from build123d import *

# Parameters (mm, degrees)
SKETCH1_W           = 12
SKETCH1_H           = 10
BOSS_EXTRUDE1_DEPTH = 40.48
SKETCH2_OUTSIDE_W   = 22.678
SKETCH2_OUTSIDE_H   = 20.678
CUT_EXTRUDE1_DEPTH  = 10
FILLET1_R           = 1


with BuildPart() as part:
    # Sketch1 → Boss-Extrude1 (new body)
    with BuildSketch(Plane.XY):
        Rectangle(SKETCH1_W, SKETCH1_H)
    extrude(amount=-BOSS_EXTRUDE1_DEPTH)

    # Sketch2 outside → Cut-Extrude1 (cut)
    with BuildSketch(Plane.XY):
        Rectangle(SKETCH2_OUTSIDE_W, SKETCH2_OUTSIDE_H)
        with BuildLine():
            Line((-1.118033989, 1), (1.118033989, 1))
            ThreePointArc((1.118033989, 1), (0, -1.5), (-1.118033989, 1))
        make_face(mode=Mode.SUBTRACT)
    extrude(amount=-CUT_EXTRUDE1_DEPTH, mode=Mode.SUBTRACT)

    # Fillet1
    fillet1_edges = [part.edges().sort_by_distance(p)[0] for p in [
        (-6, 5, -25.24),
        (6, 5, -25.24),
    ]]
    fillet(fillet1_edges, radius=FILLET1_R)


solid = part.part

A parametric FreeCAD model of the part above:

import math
import FreeCAD as App
import Part
import Sketcher

V = App.Vector
Q = App.Units.Quantity


def edges_at(feature, points):
    """Names of the edges that pass closest to the given points."""
    edges = feature.Shape.Edges
    near = lambda p: min(range(len(edges)), key=lambda i: edges[i].distToShape(Part.Vertex(*p))[0])
    return sorted({f"Edge{near(p) + 1}" for p in points})

doc = App.newDocument("Part")
body = doc.addObject("PartDesign::Body", "Body")

sketch1 = body.newObject("Sketcher::SketchObject", "Sketch")
sketch1.AttachmentSupport = (doc.getObject("XY_Plane"), [""])
sketch1.MapMode = "FlatFace"
sketch1.addGeometry(Part.LineSegment(V(-6, 5, 0), V(-6, -5, 0)), False)
sketch1.addGeometry(Part.LineSegment(V(-6, -5, 0), V(6, -5, 0)), False)
sketch1.addGeometry(Part.LineSegment(V(6, -5, 0), V(6, 5, 0)), False)
sketch1.addGeometry(Part.LineSegment(V(6, 5, 0), V(-6, 5, 0)), False)
sketch1.addConstraint(Sketcher.Constraint("Coincident", 0, 2, 1, 1))
sketch1.addConstraint(Sketcher.Constraint("Coincident", 1, 2, 2, 1))
sketch1.addConstraint(Sketcher.Constraint("Coincident", 2, 2, 3, 1))
sketch1.addConstraint(Sketcher.Constraint("Coincident", 3, 2, 0, 1))
sketch1.addConstraint(Sketcher.Constraint("Vertical", 0))
sketch1.addConstraint(Sketcher.Constraint("Horizontal", 1))
sketch1.addConstraint(Sketcher.Constraint("Vertical", 2))
sketch1.addConstraint(Sketcher.Constraint("Horizontal", 3))
sketch1.addConstraint(Sketcher.Constraint("Symmetric", 0, 2, 2, 2, -1, 1))
sketch1.addConstraint(Sketcher.Constraint("DistanceX", 1, 1, 1, 2, Q("12 mm")))
sketch1.addConstraint(Sketcher.Constraint("DistanceY", 0, 2, 0, 1, Q("10 mm")))
pad1 = body.newObject("PartDesign::Pad", "Pad")
pad1.Profile = sketch1
pad1.Length = 40.48
pad1.Reversed = True

sketch2 = body.newObject("Sketcher::SketchObject", "Sketch001")
sketch2.AttachmentSupport = (doc.getObject("XY_Plane"), [""])
sketch2.MapMode = "FlatFace"
sketch2.addGeometry(Part.LineSegment(V(-11.3, 10.3, 0), V(-11.3, -10.3, 0)), False)
sketch2.addGeometry(Part.LineSegment(V(-11.3, -10.3, 0), V(11.3, -10.3, 0)), False)
sketch2.addGeometry(Part.LineSegment(V(11.3, -10.3, 0), V(11.3, 10.3, 0)), False)
sketch2.addGeometry(Part.LineSegment(V(11.3, 10.3, 0), V(-11.3, 10.3, 0)), False)
sketch2.addGeometry(Part.ArcOfCircle(Part.Circle(V(0, 0, 0), V(0, 0, 1), 1.5), math.radians(138), math.radians(402)), False)
sketch2.addGeometry(Part.LineSegment(V(-1.1, 1, 0), V(1.1, 1, 0)), False)
sketch2.addConstraint(Sketcher.Constraint("Coincident", 0, 2, 1, 1))
sketch2.addConstraint(Sketcher.Constraint("Coincident", 1, 2, 2, 1))
sketch2.addConstraint(Sketcher.Constraint("Coincident", 2, 2, 3, 1))
sketch2.addConstraint(Sketcher.Constraint("Coincident", 3, 2, 0, 1))
sketch2.addConstraint(Sketcher.Constraint("Coincident", 4, 1, 5, 1))
sketch2.addConstraint(Sketcher.Constraint("Coincident", 5, 2, 4, 2))
sketch2.addConstraint(Sketcher.Constraint("Vertical", 0))
sketch2.addConstraint(Sketcher.Constraint("Horizontal", 1))
sketch2.addConstraint(Sketcher.Constraint("Vertical", 2))
sketch2.addConstraint(Sketcher.Constraint("Horizontal", 3))
sketch2.addConstraint(Sketcher.Constraint("Horizontal", 5))
sketch2.addConstraint(Sketcher.Constraint("Coincident", 4, 3, -1, 1))
sketch2.addConstraint(Sketcher.Constraint("Symmetric", 0, 2, 2, 2, -1, 1))
sketch2.addConstraint(Sketcher.Constraint("Radius", 4, Q("1.5 mm")))
sketch2.addConstraint(Sketcher.Constraint("DistanceY", -1, 1, 4, 1, Q("1 mm")))
sketch2.addConstraint(Sketcher.Constraint("DistanceX", 1, 1, 1, 2, Q("22.678 mm")))
sketch2.addConstraint(Sketcher.Constraint("DistanceY", 0, 2, 0, 1, Q("20.678 mm")))
pocket1 = body.newObject("PartDesign::Pocket", "Pocket")
pocket1.Profile = sketch2
pocket1.Length = 10
doc.recompute()

fillet = body.newObject("PartDesign::Fillet", "Fillet")
fillet.Base = (pocket1, edges_at(pocket1, [(-6, 5, -25.24), (6, 5, -25.24)]))
fillet.Radius = 1

doc.recompute()
